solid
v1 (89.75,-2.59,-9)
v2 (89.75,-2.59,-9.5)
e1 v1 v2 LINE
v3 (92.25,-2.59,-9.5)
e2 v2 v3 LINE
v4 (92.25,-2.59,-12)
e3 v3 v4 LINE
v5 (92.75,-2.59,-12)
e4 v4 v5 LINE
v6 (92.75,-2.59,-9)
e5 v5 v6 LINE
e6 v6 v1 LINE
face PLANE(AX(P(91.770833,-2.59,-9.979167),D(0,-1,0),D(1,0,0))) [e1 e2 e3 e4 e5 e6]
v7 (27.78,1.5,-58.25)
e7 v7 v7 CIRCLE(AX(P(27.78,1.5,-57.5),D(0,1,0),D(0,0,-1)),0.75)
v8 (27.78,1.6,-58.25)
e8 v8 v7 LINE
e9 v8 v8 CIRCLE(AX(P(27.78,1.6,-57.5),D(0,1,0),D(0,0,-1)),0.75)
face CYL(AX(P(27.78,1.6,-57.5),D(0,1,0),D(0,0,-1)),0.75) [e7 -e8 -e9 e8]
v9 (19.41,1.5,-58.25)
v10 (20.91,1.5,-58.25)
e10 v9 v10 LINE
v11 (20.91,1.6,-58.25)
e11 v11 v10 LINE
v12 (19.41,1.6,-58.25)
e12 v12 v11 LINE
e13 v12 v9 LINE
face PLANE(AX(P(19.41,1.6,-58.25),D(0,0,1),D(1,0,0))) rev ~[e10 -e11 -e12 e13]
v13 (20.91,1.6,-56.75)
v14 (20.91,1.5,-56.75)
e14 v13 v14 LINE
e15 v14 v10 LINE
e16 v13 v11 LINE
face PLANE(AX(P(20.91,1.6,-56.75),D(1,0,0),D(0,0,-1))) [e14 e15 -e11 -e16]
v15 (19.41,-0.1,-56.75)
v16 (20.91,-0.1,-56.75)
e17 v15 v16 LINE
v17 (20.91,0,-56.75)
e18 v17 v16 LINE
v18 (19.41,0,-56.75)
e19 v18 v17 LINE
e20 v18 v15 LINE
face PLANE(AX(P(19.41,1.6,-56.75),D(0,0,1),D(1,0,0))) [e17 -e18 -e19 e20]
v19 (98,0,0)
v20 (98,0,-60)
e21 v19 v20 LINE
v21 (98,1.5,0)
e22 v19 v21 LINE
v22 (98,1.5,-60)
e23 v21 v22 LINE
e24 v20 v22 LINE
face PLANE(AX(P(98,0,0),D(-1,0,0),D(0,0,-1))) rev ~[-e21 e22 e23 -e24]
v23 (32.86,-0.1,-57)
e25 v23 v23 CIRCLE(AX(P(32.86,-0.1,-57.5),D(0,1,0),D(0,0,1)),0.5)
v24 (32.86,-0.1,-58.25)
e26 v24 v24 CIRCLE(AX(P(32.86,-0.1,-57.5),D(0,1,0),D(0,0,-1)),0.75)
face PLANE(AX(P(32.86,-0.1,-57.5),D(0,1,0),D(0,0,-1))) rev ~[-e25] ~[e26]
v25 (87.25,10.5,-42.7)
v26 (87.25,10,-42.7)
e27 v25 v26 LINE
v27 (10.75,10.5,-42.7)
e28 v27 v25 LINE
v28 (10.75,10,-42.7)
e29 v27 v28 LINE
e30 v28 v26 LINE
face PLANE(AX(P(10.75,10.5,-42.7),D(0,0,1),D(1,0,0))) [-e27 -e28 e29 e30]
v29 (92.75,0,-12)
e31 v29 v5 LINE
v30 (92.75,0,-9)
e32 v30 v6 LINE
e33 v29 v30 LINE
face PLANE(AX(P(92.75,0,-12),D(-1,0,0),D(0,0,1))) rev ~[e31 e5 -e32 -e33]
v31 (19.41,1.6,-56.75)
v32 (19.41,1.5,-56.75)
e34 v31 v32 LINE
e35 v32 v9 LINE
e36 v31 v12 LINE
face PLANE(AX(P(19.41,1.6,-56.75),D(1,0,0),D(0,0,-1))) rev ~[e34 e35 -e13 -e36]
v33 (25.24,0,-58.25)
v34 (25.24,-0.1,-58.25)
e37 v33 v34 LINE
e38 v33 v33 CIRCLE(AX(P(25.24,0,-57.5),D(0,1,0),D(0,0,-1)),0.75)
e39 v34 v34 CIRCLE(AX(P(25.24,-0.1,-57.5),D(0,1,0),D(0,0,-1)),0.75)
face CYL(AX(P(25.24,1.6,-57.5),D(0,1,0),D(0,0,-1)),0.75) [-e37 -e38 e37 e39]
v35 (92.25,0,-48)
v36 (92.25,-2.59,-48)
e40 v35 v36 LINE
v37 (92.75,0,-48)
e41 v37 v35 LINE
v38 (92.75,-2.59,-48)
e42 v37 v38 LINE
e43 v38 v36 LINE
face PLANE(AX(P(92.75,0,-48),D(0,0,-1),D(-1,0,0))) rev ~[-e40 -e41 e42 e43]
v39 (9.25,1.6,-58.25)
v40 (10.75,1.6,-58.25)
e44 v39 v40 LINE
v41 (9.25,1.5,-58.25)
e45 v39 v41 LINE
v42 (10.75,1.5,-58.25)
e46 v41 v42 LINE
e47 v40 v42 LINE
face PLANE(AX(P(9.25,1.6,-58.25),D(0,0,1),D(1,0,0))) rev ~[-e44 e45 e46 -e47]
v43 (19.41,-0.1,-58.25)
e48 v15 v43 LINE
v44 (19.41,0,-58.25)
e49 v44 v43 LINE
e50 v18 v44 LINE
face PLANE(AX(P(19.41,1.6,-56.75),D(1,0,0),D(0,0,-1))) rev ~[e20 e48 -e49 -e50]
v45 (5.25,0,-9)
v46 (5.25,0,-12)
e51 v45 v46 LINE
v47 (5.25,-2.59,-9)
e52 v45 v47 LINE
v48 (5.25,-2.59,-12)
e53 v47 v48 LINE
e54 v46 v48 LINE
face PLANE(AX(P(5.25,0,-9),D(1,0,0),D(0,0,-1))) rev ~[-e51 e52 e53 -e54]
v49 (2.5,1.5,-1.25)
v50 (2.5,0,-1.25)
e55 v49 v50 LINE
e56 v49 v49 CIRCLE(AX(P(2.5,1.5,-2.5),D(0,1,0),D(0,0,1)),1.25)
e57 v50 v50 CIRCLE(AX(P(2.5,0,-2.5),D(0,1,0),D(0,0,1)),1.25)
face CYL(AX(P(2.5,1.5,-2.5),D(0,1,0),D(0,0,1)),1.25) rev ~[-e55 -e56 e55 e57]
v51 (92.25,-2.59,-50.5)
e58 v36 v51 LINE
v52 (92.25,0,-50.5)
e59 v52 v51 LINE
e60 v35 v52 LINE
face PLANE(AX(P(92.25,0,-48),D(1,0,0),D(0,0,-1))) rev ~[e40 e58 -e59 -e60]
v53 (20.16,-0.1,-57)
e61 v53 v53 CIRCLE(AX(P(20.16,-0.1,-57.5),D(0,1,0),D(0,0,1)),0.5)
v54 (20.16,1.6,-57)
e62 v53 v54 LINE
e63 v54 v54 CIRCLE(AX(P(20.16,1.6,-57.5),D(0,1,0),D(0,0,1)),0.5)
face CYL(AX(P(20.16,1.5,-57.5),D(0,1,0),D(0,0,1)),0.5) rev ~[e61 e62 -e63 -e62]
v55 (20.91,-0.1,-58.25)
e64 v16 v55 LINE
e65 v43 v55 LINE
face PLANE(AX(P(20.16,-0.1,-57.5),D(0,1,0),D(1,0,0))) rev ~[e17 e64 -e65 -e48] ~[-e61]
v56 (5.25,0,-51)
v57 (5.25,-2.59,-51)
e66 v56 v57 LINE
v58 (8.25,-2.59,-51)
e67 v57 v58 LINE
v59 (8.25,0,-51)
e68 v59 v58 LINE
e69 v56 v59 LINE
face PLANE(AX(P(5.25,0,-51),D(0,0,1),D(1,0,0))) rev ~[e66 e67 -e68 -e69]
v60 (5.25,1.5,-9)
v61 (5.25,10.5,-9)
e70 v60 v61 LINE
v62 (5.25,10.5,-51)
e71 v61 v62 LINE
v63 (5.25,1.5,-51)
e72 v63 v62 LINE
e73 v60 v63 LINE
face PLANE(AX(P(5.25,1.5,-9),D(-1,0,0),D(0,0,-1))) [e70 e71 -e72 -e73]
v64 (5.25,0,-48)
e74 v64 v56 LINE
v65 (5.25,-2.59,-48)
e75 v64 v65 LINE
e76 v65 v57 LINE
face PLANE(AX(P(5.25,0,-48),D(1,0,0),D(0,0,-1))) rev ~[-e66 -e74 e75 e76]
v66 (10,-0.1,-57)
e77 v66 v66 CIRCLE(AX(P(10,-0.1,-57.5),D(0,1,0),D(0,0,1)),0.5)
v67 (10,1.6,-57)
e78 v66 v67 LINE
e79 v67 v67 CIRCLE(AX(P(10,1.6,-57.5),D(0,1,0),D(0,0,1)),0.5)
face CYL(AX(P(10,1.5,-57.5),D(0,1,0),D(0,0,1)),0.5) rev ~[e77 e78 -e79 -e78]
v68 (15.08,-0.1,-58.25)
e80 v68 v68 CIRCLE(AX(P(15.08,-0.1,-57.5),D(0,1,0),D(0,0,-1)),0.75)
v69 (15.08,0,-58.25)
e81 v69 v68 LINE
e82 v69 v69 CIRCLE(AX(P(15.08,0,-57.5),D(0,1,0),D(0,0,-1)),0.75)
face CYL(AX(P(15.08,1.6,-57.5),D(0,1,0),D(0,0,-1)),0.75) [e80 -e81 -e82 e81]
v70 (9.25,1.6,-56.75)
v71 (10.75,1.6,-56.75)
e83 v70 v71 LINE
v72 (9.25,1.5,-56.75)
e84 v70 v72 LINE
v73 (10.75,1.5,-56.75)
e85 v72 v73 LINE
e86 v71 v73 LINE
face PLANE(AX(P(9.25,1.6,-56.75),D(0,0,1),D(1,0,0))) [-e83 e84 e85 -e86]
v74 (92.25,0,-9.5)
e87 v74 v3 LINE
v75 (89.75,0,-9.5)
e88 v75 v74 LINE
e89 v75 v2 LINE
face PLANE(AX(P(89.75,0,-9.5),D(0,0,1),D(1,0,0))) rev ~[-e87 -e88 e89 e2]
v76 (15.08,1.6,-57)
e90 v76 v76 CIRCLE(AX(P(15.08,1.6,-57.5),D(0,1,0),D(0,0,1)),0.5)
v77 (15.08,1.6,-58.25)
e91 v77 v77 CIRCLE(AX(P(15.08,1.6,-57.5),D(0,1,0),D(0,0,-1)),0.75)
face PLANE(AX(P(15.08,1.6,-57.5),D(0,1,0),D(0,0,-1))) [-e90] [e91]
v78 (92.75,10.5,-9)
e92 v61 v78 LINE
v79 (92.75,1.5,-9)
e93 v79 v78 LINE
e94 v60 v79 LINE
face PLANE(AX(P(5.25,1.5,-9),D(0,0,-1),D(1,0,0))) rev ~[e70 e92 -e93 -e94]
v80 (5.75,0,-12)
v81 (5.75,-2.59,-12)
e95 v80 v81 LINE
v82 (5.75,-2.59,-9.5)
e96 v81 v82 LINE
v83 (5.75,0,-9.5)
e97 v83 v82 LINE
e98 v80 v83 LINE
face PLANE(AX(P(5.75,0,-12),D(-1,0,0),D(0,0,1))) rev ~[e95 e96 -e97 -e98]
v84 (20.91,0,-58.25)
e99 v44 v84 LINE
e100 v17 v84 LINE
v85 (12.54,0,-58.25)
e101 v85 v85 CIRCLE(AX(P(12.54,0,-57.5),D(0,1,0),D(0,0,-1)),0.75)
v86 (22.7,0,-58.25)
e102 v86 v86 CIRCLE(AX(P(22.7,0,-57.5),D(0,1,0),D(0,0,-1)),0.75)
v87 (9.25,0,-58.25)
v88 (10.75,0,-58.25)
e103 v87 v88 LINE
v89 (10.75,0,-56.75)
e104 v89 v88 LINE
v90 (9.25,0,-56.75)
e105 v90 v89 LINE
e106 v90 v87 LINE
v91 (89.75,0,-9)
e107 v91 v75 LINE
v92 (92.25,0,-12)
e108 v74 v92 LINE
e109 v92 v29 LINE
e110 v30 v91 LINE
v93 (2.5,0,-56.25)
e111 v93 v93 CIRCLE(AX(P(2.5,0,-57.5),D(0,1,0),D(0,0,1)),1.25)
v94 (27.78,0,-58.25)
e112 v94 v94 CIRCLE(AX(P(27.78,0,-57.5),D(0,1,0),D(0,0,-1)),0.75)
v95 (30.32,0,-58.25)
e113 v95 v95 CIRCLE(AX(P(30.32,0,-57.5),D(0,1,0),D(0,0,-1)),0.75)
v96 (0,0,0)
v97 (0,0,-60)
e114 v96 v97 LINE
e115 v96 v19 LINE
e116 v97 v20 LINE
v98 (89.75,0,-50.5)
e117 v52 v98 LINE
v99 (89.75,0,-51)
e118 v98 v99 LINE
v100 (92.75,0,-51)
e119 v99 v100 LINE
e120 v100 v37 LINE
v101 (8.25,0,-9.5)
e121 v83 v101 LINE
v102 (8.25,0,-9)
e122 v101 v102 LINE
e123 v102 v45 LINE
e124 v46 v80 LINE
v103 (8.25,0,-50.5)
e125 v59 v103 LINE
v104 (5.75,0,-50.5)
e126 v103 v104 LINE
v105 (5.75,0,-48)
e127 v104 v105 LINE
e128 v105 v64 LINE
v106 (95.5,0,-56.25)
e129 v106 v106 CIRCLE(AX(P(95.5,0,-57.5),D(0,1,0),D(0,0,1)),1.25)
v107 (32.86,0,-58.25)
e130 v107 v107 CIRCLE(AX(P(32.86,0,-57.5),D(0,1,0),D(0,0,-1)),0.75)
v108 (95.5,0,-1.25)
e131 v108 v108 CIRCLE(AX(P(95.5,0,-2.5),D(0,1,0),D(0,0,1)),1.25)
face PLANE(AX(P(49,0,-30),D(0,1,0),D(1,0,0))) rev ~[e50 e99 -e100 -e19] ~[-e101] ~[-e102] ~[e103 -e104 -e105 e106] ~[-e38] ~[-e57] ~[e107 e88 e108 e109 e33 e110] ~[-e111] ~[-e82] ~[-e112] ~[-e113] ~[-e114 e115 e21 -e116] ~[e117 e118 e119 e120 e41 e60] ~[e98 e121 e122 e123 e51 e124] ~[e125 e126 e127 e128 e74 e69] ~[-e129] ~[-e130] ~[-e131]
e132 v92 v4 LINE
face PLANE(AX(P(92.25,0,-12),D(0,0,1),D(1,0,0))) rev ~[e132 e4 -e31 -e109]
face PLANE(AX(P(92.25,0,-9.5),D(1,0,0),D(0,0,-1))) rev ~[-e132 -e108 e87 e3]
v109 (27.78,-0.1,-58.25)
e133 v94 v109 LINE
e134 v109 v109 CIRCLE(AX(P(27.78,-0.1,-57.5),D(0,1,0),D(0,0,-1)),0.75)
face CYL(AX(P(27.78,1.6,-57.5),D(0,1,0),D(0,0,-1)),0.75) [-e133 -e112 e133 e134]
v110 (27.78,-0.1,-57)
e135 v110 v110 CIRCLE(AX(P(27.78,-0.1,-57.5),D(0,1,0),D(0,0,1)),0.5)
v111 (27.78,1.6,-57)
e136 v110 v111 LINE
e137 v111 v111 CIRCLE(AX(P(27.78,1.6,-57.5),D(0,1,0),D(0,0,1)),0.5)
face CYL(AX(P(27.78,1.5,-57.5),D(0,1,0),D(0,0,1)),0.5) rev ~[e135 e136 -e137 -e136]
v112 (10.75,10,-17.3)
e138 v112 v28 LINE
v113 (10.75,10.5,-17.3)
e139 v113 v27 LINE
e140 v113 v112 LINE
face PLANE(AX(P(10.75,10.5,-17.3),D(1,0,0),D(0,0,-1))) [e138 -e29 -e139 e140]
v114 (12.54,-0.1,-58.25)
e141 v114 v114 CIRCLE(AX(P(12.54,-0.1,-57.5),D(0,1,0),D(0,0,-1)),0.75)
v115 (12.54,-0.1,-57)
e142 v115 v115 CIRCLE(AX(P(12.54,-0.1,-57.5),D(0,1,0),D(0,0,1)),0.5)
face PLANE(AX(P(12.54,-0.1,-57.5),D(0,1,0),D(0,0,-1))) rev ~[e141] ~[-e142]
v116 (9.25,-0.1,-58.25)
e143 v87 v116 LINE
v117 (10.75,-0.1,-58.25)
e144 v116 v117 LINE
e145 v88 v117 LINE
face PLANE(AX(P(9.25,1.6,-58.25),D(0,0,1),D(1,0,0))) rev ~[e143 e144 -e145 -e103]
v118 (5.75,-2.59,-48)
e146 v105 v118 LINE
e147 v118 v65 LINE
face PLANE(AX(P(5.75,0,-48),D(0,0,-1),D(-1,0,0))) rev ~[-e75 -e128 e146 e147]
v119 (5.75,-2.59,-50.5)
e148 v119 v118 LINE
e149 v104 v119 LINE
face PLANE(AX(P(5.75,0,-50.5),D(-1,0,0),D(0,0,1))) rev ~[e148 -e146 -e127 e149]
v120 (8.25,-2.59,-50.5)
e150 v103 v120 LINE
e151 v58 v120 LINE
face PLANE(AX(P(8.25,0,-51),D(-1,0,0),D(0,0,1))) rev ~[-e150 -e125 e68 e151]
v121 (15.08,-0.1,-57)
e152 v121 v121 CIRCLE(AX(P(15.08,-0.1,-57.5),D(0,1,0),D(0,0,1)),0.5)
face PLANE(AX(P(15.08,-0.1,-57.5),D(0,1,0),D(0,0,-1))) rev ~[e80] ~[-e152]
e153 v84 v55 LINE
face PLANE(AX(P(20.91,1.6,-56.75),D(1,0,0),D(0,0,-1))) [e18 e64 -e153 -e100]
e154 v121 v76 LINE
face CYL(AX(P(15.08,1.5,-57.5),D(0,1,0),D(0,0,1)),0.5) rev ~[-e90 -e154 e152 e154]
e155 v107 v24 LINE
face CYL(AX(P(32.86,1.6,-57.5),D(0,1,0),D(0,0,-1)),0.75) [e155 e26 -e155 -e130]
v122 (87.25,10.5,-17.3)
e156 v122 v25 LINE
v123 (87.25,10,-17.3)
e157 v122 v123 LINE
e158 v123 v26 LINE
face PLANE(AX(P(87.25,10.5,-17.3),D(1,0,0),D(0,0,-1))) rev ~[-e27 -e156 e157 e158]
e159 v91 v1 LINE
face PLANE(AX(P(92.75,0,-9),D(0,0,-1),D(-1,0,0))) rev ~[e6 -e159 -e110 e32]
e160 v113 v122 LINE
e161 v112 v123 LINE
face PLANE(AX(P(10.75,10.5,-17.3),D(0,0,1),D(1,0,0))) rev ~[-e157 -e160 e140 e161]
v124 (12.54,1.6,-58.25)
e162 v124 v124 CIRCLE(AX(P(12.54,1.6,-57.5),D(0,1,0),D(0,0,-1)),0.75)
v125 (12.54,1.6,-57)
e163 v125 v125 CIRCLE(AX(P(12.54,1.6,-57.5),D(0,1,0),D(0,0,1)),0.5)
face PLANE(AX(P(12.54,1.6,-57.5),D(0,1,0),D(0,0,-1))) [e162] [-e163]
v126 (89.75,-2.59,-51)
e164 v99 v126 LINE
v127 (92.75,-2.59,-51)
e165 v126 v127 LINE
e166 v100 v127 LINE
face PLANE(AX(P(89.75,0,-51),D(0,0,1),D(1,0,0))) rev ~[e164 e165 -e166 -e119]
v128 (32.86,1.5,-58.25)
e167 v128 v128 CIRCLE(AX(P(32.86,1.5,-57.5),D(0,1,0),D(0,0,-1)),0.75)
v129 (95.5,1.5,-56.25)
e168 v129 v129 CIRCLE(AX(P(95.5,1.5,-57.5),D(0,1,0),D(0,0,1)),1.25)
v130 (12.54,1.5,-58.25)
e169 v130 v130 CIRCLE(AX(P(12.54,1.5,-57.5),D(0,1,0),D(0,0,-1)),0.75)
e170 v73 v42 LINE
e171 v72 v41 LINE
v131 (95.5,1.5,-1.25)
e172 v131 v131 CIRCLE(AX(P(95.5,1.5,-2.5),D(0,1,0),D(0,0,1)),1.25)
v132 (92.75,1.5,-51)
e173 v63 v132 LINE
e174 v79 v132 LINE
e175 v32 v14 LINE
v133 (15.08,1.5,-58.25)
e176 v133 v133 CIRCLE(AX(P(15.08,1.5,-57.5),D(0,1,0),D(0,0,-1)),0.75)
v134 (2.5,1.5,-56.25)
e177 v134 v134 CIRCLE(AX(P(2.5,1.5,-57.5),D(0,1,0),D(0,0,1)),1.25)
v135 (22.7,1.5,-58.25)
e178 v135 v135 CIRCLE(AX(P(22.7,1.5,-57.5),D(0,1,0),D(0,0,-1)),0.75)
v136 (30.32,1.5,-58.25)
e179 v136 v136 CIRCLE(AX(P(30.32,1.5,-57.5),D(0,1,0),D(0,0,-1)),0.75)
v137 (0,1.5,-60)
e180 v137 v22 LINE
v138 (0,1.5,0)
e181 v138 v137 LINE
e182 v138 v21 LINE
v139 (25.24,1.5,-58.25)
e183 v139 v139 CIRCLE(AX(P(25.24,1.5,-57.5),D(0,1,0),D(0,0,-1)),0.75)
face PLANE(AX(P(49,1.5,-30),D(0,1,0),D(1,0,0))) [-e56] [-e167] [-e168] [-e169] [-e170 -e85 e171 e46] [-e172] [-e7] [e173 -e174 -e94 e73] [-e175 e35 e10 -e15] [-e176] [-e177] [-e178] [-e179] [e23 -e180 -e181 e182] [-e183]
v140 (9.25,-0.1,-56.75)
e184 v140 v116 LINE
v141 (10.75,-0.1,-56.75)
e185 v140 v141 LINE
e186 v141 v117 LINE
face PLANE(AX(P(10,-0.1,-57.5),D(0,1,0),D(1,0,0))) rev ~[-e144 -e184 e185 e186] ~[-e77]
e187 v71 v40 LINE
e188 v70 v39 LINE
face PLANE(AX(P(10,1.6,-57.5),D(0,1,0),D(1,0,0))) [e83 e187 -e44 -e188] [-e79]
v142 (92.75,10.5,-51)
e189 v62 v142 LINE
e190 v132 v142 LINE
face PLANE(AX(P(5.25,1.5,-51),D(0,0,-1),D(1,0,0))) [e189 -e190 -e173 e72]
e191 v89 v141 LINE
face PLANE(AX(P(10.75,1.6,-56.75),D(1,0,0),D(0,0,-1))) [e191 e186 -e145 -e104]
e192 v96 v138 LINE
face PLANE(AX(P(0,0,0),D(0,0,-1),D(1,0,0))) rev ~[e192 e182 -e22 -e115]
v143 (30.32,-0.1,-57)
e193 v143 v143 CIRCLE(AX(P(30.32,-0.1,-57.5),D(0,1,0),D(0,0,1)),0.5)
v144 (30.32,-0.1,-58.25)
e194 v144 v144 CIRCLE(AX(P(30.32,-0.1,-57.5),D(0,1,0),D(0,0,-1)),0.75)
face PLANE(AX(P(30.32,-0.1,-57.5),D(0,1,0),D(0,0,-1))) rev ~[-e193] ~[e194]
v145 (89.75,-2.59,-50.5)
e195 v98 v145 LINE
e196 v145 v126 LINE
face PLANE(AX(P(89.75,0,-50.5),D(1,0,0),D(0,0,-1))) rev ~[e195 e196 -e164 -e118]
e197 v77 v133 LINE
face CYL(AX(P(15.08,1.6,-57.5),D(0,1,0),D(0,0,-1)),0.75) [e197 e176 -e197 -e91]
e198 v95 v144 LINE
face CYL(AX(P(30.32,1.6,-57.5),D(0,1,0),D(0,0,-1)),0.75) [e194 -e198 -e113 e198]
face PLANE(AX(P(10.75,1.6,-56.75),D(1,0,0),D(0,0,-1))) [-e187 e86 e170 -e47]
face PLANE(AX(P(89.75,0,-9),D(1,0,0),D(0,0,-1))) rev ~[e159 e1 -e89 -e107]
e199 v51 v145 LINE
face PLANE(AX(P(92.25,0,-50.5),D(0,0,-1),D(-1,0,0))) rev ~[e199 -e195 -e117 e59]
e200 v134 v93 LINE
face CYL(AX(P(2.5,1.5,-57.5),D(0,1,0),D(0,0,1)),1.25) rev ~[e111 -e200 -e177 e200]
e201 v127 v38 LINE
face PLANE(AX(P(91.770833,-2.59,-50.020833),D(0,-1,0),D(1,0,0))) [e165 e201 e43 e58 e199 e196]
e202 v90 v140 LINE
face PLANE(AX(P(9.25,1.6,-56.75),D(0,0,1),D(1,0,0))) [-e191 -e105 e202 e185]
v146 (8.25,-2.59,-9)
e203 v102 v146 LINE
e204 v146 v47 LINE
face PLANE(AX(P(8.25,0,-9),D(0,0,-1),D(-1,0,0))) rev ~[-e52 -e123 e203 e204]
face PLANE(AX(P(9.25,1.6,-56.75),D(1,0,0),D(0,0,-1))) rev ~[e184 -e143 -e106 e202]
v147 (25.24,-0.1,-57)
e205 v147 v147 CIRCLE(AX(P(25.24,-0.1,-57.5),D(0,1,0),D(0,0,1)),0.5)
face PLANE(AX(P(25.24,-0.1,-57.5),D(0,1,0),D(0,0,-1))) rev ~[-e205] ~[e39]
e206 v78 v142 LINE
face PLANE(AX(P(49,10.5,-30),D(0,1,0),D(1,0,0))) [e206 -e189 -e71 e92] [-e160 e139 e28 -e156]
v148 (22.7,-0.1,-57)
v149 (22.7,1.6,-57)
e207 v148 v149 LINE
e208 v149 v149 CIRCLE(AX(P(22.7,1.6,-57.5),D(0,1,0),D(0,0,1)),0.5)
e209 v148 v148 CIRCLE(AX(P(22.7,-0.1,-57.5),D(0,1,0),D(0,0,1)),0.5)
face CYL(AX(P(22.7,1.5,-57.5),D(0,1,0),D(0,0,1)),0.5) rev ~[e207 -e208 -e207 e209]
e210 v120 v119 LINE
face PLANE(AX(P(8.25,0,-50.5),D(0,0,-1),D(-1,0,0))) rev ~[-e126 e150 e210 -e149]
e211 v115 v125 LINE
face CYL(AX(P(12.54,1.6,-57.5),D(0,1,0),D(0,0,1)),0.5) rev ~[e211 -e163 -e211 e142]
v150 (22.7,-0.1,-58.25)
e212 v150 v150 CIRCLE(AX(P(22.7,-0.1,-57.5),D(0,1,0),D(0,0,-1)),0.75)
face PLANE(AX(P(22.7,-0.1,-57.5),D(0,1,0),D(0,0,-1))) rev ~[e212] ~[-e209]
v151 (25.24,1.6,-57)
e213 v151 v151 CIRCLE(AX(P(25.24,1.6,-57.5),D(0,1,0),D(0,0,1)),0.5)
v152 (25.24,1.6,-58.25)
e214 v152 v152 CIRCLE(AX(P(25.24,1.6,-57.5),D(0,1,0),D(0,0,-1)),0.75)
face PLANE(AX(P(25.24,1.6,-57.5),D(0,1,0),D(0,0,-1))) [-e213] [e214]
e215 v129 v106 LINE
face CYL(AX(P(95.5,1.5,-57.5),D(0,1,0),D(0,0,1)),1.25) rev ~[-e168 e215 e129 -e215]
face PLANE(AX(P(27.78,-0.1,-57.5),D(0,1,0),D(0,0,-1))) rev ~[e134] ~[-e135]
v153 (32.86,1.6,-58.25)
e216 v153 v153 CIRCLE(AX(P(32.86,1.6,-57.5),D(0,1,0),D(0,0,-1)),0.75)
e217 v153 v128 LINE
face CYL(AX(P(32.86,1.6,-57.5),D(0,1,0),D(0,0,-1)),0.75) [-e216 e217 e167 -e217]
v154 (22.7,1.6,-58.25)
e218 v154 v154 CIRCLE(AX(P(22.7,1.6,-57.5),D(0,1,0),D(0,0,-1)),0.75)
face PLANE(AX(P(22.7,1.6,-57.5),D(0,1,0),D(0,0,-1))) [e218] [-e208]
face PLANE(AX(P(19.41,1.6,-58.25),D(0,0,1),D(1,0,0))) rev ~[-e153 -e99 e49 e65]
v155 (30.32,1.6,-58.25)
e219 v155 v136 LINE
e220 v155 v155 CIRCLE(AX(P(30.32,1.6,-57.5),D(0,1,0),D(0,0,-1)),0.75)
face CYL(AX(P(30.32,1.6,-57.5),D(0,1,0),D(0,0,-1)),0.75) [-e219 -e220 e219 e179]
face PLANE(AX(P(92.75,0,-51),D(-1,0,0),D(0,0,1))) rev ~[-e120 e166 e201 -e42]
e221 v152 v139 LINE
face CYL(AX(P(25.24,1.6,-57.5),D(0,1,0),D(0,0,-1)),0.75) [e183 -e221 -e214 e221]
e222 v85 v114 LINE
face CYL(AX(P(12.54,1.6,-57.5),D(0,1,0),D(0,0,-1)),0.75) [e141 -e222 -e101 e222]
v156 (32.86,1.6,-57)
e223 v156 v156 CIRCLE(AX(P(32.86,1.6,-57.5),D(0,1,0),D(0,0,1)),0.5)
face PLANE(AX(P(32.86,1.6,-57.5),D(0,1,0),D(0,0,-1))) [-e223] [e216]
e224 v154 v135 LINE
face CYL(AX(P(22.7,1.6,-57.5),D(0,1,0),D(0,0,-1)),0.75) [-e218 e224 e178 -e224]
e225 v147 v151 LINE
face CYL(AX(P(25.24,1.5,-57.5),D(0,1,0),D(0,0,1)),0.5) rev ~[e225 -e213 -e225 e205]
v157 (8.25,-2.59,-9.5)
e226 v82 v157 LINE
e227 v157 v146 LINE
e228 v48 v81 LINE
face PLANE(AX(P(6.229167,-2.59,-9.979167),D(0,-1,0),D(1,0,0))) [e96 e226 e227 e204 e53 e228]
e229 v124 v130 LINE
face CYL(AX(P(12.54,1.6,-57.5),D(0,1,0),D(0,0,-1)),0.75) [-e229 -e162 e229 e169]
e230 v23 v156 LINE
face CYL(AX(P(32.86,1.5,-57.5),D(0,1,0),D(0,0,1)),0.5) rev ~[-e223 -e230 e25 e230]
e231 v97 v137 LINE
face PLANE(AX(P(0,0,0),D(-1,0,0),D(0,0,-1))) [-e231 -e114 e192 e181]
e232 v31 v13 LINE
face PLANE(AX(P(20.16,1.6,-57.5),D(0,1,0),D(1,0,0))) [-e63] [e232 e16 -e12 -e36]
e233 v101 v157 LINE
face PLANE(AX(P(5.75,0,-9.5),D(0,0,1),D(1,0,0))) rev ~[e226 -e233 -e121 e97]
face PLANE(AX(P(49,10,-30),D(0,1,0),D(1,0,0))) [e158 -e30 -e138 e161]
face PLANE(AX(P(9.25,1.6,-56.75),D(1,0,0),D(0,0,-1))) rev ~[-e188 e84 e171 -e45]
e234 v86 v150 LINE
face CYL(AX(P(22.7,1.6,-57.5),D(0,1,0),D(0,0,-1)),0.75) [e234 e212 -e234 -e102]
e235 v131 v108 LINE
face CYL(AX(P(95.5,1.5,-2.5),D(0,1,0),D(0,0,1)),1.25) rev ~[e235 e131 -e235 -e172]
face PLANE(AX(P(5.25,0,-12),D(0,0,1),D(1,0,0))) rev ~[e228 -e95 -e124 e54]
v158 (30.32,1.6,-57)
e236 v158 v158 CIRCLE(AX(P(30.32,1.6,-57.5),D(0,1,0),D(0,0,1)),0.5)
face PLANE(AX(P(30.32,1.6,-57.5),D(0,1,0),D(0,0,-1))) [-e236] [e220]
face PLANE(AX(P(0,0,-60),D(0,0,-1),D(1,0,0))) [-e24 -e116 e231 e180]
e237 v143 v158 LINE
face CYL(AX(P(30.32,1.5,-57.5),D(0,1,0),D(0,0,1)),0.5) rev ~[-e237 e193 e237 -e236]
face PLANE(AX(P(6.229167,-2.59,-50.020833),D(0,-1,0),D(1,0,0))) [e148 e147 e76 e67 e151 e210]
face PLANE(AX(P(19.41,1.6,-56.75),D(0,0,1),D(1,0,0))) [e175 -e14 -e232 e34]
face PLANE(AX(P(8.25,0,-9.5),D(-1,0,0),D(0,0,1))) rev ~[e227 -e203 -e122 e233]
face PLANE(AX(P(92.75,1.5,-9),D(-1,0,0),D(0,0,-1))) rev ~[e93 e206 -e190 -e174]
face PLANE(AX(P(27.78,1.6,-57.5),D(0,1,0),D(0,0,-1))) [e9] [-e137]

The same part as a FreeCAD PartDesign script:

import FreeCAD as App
import Part
import Sketcher
from FreeCAD import Vector

doc = App.newDocument("Part")
body = doc.addObject("PartDesign::Body", "Body")

sketch1 = body.newObject("Sketcher::SketchObject", "Sketch")
sketch1.AttachmentSupport = (doc.getObject("XZ_Plane"), [""])
sketch1.MapMode = "FlatFace"
sketch1.addGeometry(Part.LineSegment(Vector(0, -60, 0), Vector(0, 0, 0)), False)
sketch1.addGeometry(Part.LineSegment(Vector(0, 0, 0), Vector(98, 0, 0)), False)
sketch1.addGeometry(Part.LineSegment(Vector(98, 0, 0), Vector(98, -60, 0)), False)
sketch1.addGeometry(Part.LineSegment(Vector(98, -60, 0), Vector(0, -60, 0)), False)
sketch1.addConstraint(Sketcher.Constraint("Coincident", 0, 2, 1, 1))
sketch1.addConstraint(Sketcher.Constraint("Coincident", 1, 2, 2, 1))
sketch1.addConstraint(Sketcher.Constraint("Coincident", 2, 2, 3, 1))
sketch1.addConstraint(Sketcher.Constraint("Coincident", 3, 2, 0, 1))
sketch1.addConstraint(Sketcher.Constraint("Vertical", 0))
sketch1.addConstraint(Sketcher.Constraint("Horizontal", 1))
sketch1.addConstraint(Sketcher.Constraint("Vertical", 2))
sketch1.addConstraint(Sketcher.Constraint("Horizontal", 3))
sketch1.addConstraint(Sketcher.Constraint("Coincident", 0, 2, -1, 1))
sketch1.addConstraint(Sketcher.Constraint("DistanceX", 1, 1, 1, 2, 98.0))
sketch1.addConstraint(Sketcher.Constraint("DistanceY", 0, 1, 0, 2, 60.0))
pad1 = body.newObject("PartDesign::Pad", "Pad")
pad1.Profile = sketch1
pad1.Length = 1.5
pad1.Reversed = True

sketch2 = body.newObject("Sketcher::SketchObject", "Sketch001")
sketch2.AttachmentSupport = (doc.getObject("XZ_Plane"), [""])
sketch2.MapMode = "FlatFace"
sketch2.AttachmentOffset = App.Placement(Vector(0, 0, -1.5), App.Rotation())
sketch2.addGeometry(Part.LineSegment(Vector(5, -51, 0), Vector(5, -9, 0)), False)
sketch2.addGeometry(Part.LineSegment(Vector(5, -9, 0), Vector(93, -9, 0)), False)
sketch2.addGeometry(Part.LineSegment(Vector(93, -9, 0), Vector(93, -51, 0)), False)
sketch2.addGeometry(Part.LineSegment(Vector(93, -51, 0), Vector(5, -51, 0)), False)
sketch2.addConstraint(Sketcher.Constraint("Coincident", 0, 2, 1, 1))
sketch2.addConstraint(Sketcher.Constraint("Coincident", 1, 2, 2, 1))
sketch2.addConstraint(Sketcher.Constraint("Coincident", 2, 2, 3, 1))
sketch2.addConstraint(Sketcher.Constraint("Coincident", 3, 2, 0, 1))
sketch2.addConstraint(Sketcher.Constraint("Vertical", 0))
sketch2.addConstraint(Sketcher.Constraint("Horizontal", 1))
sketch2.addConstraint(Sketcher.Constraint("Vertical", 2))
sketch2.addConstraint(Sketcher.Constraint("Horizontal", 3))
sketch2.addConstraint(Sketcher.Constraint("DistanceY", 0, 1, 0, 2, 42.0))
sketch2.addConstraint(Sketcher.Constraint("DistanceX", 1, 1, 1, 2, 87.5))
sketch2.addConstraint(Sketcher.Constraint("DistanceY", 0, 2, -1, 1, 9.0))
sketch2.addConstraint(Sketcher.Constraint("DistanceX", -1, 1, 0, 2, 5.25))
pad2 = body.newObject("PartDesign::Pad", "Pad001")
pad2.Profile = sketch2
pad2.Length = 9
pad2.Reversed = True

sketch3 = body.newObject("Sketcher::SketchObject", "Sketch002")
sketch3.AttachmentSupport = (doc.getObject("XZ_Plane"), [""])
sketch3.MapMode = "FlatFace"
sketch3.AttachmentOffset = App.Placement(Vector(0, 0, -10.5), App.Rotation())
sketch3.addGeometry(Part.LineSegment(Vector(11, -43, 0), Vector(11, -17, 0)), False)
sketch3.addGeometry(Part.LineSegment(Vector(11, -17, 0), Vector(87, -17, 0)), False)
sketch3.addGeometry(Part.LineSegment(Vector(87, -17, 0), Vector(87, -43, 0)), False)
sketch3.addGeometry(Part.LineSegment(Vector(87, -43, 0), Vector(11, -43, 0)), False)
sketch3.addConstraint(Sketcher.Constraint("Coincident", 0, 2, 1, 1))
sketch3.addConstraint(Sketcher.Constraint("Coincident", 1, 2, 2, 1))
sketch3.addConstraint(Sketcher.Constraint("Coincident", 2, 2, 3, 1))
sketch3.addConstraint(Sketcher.Constraint("Coincident", 3, 2, 0, 1))
sketch3.addConstraint(Sketcher.Constraint("Vertical", 0))
sketch3.addConstraint(Sketcher.Constraint("Horizontal", 1))
sketch3.addConstraint(Sketcher.Constraint("Vertical", 2))
sketch3.addConstraint(Sketcher.Constraint("Horizontal", 3))
sketch3.addConstraint(Sketcher.Constraint("DistanceX", 1, 1, 1, 2, 76.5))
sketch3.addConstraint(Sketcher.Constraint("DistanceY", 0, 1, 0, 2, 25.4))
sketch3.addConstraint(Sketcher.Constraint("DistanceY", 0, 2, -1, 1, 17.3))
sketch3.addConstraint(Sketcher.Constraint("DistanceX", -1, 1, 0, 2, 10.75))
pocket1 = body.newObject("PartDesign::Pocket", "Pocket")
pocket1.Profile = sketch3
pocket1.Length = 0.5
pocket1.Reversed = True

sketch4 = body.newObject("Sketcher::SketchObject", "Sketch003")
sketch4.AttachmentSupport = (doc.getObject("XZ_Plane"), [""])
sketch4.MapMode = "FlatFace"
sketch4.AttachmentOffset = App.Placement(Vector(0, 0, -1.5), App.Rotation())
sketch4.addGeometry(Part.Circle(Vector(2.5, -57.5, 0), Vector(0, 0, 1), 1.2), False)
sketch4.addGeometry(Part.Circle(Vector(95.5, -57.5, 0), Vector(0, 0, 1), 1.2), False)
sketch4.addGeometry(Part.Circle(Vector(95.5, -2.5, 0), Vector(0, 0, 1), 1.2), False)
sketch4.addGeometry(Part.Circle(Vector(2.5, -2.5, 0), Vector(0, 0, 1), 1.2), False)
sketch4.addConstraint(Sketcher.Constraint("Equal", 0, 1))
sketch4.addConstraint(Sketcher.Constraint("Equal", 1, 2))
sketch4.addConstraint(Sketcher.Constraint("Equal", 2, 3))
sketch4.addConstraint(Sketcher.Constraint("Horizontal", 0, 3, 1, 3))
sketch4.addConstraint(Sketcher.Constraint("Horizontal", 2, 3, 3, 3))
sketch4.addConstraint(Sketcher.Constraint("Vertical", 1, 3, 2, 3))
sketch4.addConstraint(Sketcher.Constraint("Vertical", 0, 3, 3, 3))
sketch4.addConstraint(Sketcher.Constraint("Diameter", 0, 2.5))
sketch4.addConstraint(Sketcher.Constraint("DistanceX", 0, 3, 1, 3, 93.0))
sketch4.addConstraint(Sketcher.Constraint("DistanceY", 1, 3, 2, 3, 55.0))
sketch4.addConstraint(Sketcher.Constraint("DistanceX", -1, 1, 0, 3, 2.5))
sketch4.addConstraint(Sketcher.Constraint("DistanceY", 0, 3, -1, 1, 57.5))
pocket2 = body.newObject("PartDesign::Pocket", "Pocket001")
pocket2.Profile = sketch4
pocket2.Type = "ThroughAll"
pocket2.Reversed = True

sketch5 = body.newObject("Sketcher::SketchObject", "Sketch004")
sketch5.AttachmentSupport = (doc.getObject("XZ_Plane"), [""])
sketch5.MapMode = "FlatFace"
sketch5.AttachmentOffset = App.Placement(Vector(0, 0, -1.5), App.Rotation())
sketch5.addGeometry(Part.Circle(Vector(10, -57.5, 0), Vector(0, 0, 1), 0.5), False)
sketch5.addGeometry(Part.Circle(Vector(12.5, -57.5, 0), Vector(0, 0, 1), 0.5), False)
sketch5.addGeometry(Part.Circle(Vector(15.1, -57.5, 0), Vector(0, 0, 1), 0.5), False)
sketch5.addGeometry(Part.Circle(Vector(20.2, -57.5, 0), Vector(0, 0, 1), 0.5), False)
sketch5.addGeometry(Part.Circle(Vector(22.7, -57.5, 0), Vector(0, 0, 1), 0.5), False)
sketch5.addGeometry(Part.Circle(Vector(25.2, -57.5, 0), Vector(0, 0, 1), 0.5), False)
sketch5.addGeometry(Part.Circle(Vector(27.8, -57.5, 0), Vector(0, 0, 1), 0.5), False)
sketch5.addGeometry(Part.Circle(Vector(30.3, -57.5, 0), Vector(0, 0, 1), 0.5), False)
sketch5.addGeometry(Part.Circle(Vector(32.9, -57.5, 0), Vector(0, 0, 1), 0.5), False)
sketch5.addConstraint(Sketcher.Constraint("Equal", 0, 1))
sketch5.addConstraint(Sketcher.Constraint("Equal", 1, 2))
sketch5.addConstraint(Sketcher.Constraint("Equal", 2, 3))
sketch5.addConstraint(Sketcher.Constraint("Equal", 3, 4))
sketch5.addConstraint(Sketcher.Constraint("Equal", 4, 5))
sketch5.addConstraint(Sketcher.Constraint("Equal", 5, 6))
sketch5.addConstraint(Sketcher.Constraint("Equal", 6, 7))
sketch5.addConstraint(Sketcher.Constraint("Equal", 7, 8))
sketch5.addConstraint(Sketcher.Constraint("Horizontal", 0, 3, 1, 3))
sketch5.addConstraint(Sketcher.Constraint("Horizontal", 1, 3, 2, 3))
sketch5.addConstraint(Sketcher.Constraint("Horizontal", 2, 3, 3, 3))
sketch5.addConstraint(Sketcher.Constraint("Horizontal", 3, 3, 4, 3))
sketch5.addConstraint(Sketcher.Constraint("Horizontal", 4, 3, 5, 3))
sketch5.addConstraint(Sketcher.Constraint("Horizontal", 5, 3, 6, 3))
sketch5.addConstraint(Sketcher.Constraint("Horizontal", 6, 3, 7, 3))
sketch5.addConstraint(Sketcher.Constraint("Horizontal", 7, 3, 8, 3))
sketch5.addConstraint(Sketcher.Constraint("Diameter", 0, 1.0))
sketch5.addConstraint(Sketcher.Constraint("DistanceX", -1, 1, 0, 3, 10.0))
sketch5.addConstraint(Sketcher.Constraint("DistanceY", 0, 3, -1, 1, 57.5))
sketch5.addConstraint(Sketcher.Constraint("DistanceX", -1, 1, 4, 3, 22.7))
sketch5.addConstraint(Sketcher.Constraint("DistanceX", 1, 3, 5, 3, 12.7))
sketch5.addConstraint(Sketcher.Constraint("DistanceX", 2, 3, 6, 3, 12.7))
sketch5.addConstraint(Sketcher.Constraint("DistanceX", 3, 3, 8, 3, 12.7))
sketch5.addConstraint(Sketcher.Constraint("DistanceX", -1, 1, 1, 3, 12.54))
sketch5.addConstraint(Sketcher.Constraint("DistanceX", -1, 1, 2, 3, 15.08))
sketch5.addConstraint(Sketcher.Constraint("DistanceX", -1, 1, 3, 3, 20.16))
sketch5.addConstraint(Sketcher.Constraint("DistanceX", -1, 1, 7, 3, 30.32))
pocket3 = body.newObject("PartDesign::Pocket", "Pocket002")
pocket3.Profile = sketch5
pocket3.Length = 10
pocket3.Reversed = True

sketch6 = body.newObject("Sketcher::SketchObject", "Sketch005")
sketch6.AttachmentSupport = (doc.getObject("XZ_Plane"), [""])
sketch6.MapMode = "FlatFace"
sketch6.AttachmentOffset = App.Placement(Vector(0, 0, -1.6), App.Rotation())
sketch6.addGeometry(Part.Circle(Vector(12.5, -57.5, 0), Vector(0, 0, 1), 0.8), False)
sketch6.addGeometry(Part.Circle(Vector(12.5, -57.5, 0), Vector(0, 0, 1), 0.5), False)
sketch6.addGeometry(Part.Circle(Vector(15.1, -57.5, 0), Vector(0, 0, 1), 0.8), False)
sketch6.addGeometry(Part.Circle(Vector(15.1, -57.5, 0), Vector(0, 0, 1), 0.5), False)
sketch6.addGeometry(Part.Circle(Vector(22.7, -57.5, 0), Vector(0, 0, 1), 0.8), False)
sketch6.addGeometry(Part.Circle(Vector(22.7, -57.5, 0), Vector(0, 0, 1), 0.5), False)
sketch6.addGeometry(Part.Circle(Vector(25.2, -57.5, 0), Vector(0, 0, 1), 0.8), False)
sketch6.addGeometry(Part.Circle(Vector(25.2, -57.5, 0), Vector(0, 0, 1), 0.5), False)
sketch6.addGeometry(Part.Circle(Vector(27.8, -57.5, 0), Vector(0, 0, 1), 0.8), False)
sketch6.addGeometry(Part.Circle(Vector(27.8, -57.5, 0), Vector(0, 0, 1), 0.5), False)
sketch6.addGeometry(Part.Circle(Vector(30.3, -57.5, 0), Vector(0, 0, 1), 0.8), False)
sketch6.addGeometry(Part.Circle(Vector(30.3, -57.5, 0), Vector(0, 0, 1), 0.5), False)
sketch6.addGeometry(Part.Circle(Vector(32.9, -57.5, 0), Vector(0, 0, 1), 0.8), False)
sketch6.addGeometry(Part.Circle(Vector(32.9, -57.5, 0), Vector(0, 0, 1), 0.5), False)
sketch6.addGeometry(Part.LineSegment(Vector(19.4, -58.2, 0), Vector(19.4, -56.8, 0)), False)
sketch6.addGeometry(Part.LineSegment(Vector(19.4, -56.8, 0), Vector(20.9, -56.8, 0)), False)
sketch6.addGeometry(Part.LineSegment(Vector(20.9, -56.8, 0), Vector(20.9, -58.2, 0)), False)
sketch6.addGeometry(Part.LineSegment(Vector(20.9, -58.2, 0), Vector(19.4, -58.2, 0)), False)
sketch6.addGeometry(Part.Circle(Vector(20.2, -57.5, 0), Vector(0, 0, 1), 0.5), False)
sketch6.addGeometry(Part.LineSegment(Vector(9.2, -58.2, 0), Vector(9.2, -56.8, 0)), False)
sketch6.addGeometry(Part.LineSegment(Vector(9.2, -56.8, 0), Vector(10.8, -56.8, 0)), False)
sketch6.addGeometry(Part.LineSegment(Vector(10.8, -56.8, 0), Vector(10.8, -58.2, 0)), False)
sketch6.addGeometry(Part.LineSegment(Vector(10.8, -58.2, 0), Vector(9.2, -58.2, 0)), False)
sketch6.addGeometry(Part.Circle(Vector(10, -57.5, 0), Vector(0, 0, 1), 0.5), False)
sketch6.addConstraint(Sketcher.Constraint("Coincident", 14, 2, 15, 1))
sketch6.addConstraint(Sketcher.Constraint("Coincident", 15, 2, 16, 1))
sketch6.addConstraint(Sketcher.Constraint("Coincident", 16, 2, 17, 1))
sketch6.addConstraint(Sketcher.Constraint("Coincident", 17, 2, 14, 1))
sketch6.addConstraint(Sketcher.Constraint("Coincident", 19, 2, 20, 1))
sketch6.addConstraint(Sketcher.Constraint("Coincident", 20, 2, 21, 1))
sketch6.addConstraint(Sketcher.Constraint("Coincident", 21, 2, 22, 1))
sketch6.addConstraint(Sketcher.Constraint("Coincident", 22, 2, 19, 1))
sketch6.addConstraint(Sketcher.Constraint("Vertical", 14))
sketch6.addConstraint(Sketcher.Constraint("Horizontal", 15))
sketch6.addConstraint(Sketcher.Constraint("Vertical", 16))
sketch6.addConstraint(Sketcher.Constraint("Horizontal", 17))
sketch6.addConstraint(Sketcher.Constraint("Vertical", 19))
sketch6.addConstraint(Sketcher.Constraint("Horizontal", 20))
sketch6.addConstraint(Sketcher.Constraint("Vertical", 21))
sketch6.addConstraint(Sketcher.Constraint("Horizontal", 22))
sketch6.addConstraint(Sketcher.Constraint("Coincident", 1, 3, 0, 3))
sketch6.addConstraint(Sketcher.Constraint("Coincident", 3, 3, 2, 3))
sketch6.addConstraint(Sketcher.Constraint("Coincident", 5, 3, 4, 3))
sketch6.addConstraint(Sketcher.Constraint("Coincident", 7, 3, 6, 3))
sketch6.addConstraint(Sketcher.Constraint("Coincident", 9, 3, 8, 3))
sketch6.addConstraint(Sketcher.Constraint("Coincident", 11, 3, 10, 3))
sketch6.addConstraint(Sketcher.Constraint("Coincident", 13, 3, 12, 3))
sketch6.addConstraint(Sketcher.Constraint("Equal", 0, 2))
sketch6.addConstraint(Sketcher.Constraint("Equal", 1, 3))
sketch6.addConstraint(Sketcher.Constraint("Equal", 2, 4))
sketch6.addConstraint(Sketcher.Constraint("Equal", 3, 5))
sketch6.addConstraint(Sketcher.Constraint("Equal", 4, 6))
sketch6.addConstraint(Sketcher.Constraint("Equal", 5, 7))
sketch6.addConstraint(Sketcher.Constraint("Equal", 6, 8))
sketch6.addConstraint(Sketcher.Constraint("Equal", 7, 9))
sketch6.addConstraint(Sketcher.Constraint("Equal", 8, 10))
sketch6.addConstraint(Sketcher.Constraint("Equal", 9, 11))
sketch6.addConstraint(Sketcher.Constraint("Equal", 10, 12))
sketch6.addConstraint(Sketcher.Constraint("Equal", 11, 13))
sketch6.addConstraint(Sketcher.Constraint("Equal", 13, 18))
sketch6.addConstraint(Sketcher.Constraint("Equal", 18, 23))
sketch6.addConstraint(Sketcher.Constraint("Horizontal", 1, 3, 2, 3))
sketch6.addConstraint(Sketcher.Constraint("Horizontal", 3, 3, 4, 3))
sketch6.addConstraint(Sketcher.Constraint("Horizontal", 5, 3, 6, 3))
sketch6.addConstraint(Sketcher.Constraint("Horizontal", 7, 3, 8, 3))
sketch6.addConstraint(Sketcher.Constraint("Horizontal", 9, 3, 10, 3))
sketch6.addConstraint(Sketcher.Constraint("Horizontal", 11, 3, 12, 3))
sketch6.addConstraint(Sketcher.Constraint("Horizontal", 13, 3, 18, 3))
sketch6.addConstraint(Sketcher.Constraint("Horizontal", 18, 3, 23, 3))
sketch6.addConstraint(Sketcher.Constraint("Horizontal", 15, 2, 19, 2))
sketch6.addConstraint(Sketcher.Constraint("Horizontal", 17, 2, 21, 2))
sketch6.addConstraint(Sketcher.Constraint("Equal", 17, 20))
sketch6.addConstraint(Sketcher.Constraint("Equal", 22, 14))
sketch6.addConstraint(Sketcher.Constraint("Diameter", 1, 1.0))
sketch6.addConstraint(Sketcher.Constraint("Diameter", 0, 1.5))
sketch6.addConstraint(Sketcher.Constraint("DistanceX", 15, 1, 15, 2, 1.5))
sketch6.addConstraint(Sketcher.Constraint("DistanceX", -1, 1, 23, 3, 10.0))
sketch6.addConstraint(Sketcher.Constraint("DistanceY", 0, 3, -1, 1, 57.5))
sketch6.addConstraint(Sketcher.Constraint("DistanceX", -1, 1, 4, 3, 22.7))
sketch6.addConstraint(Sketcher.Constraint("DistanceX", 0, 3, 6, 3, 12.7))
sketch6.addConstraint(Sketcher.Constraint("DistanceX", 2, 3, 8, 3, 12.7))
sketch6.addConstraint(Sketcher.Constraint("DistanceX", -1, 1, 0, 3, 12.54))
sketch6.addConstraint(Sketcher.Constraint("DistanceX", -1, 1, 2, 3, 15.08))
sketch6.addConstraint(Sketcher.Constraint("DistanceX", -1, 1, 10, 3, 30.32))
sketch6.addConstraint(Sketcher.Constraint("DistanceX", -1, 1, 12, 3, 32.86))
sketch6.addConstraint(Sketcher.Constraint("DistanceX", -1, 1, 18, 3, 20.16))
sketch6.addConstraint(Sketcher.Constraint("DistanceX", -1, 1, 14, 2, 19.41))
sketch6.addConstraint(Sketcher.Constraint("DistanceY", 14, 2, -1, 1, 56.75))
sketch6.addConstraint(Sketcher.Constraint("DistanceX", -1, 1, 19, 2, 9.25))
pad3 = body.newObject("PartDesign::Pad", "Pad002")
pad3.Profile = sketch6
pad3.Length = 0.1

sketch7 = body.newObject("Sketcher::SketchObject", "Sketch006")
sketch7.AttachmentSupport = (doc.getObject("XZ_Plane"), [""])
sketch7.MapMode = "FlatFace"
sketch7.AttachmentOffset = App.Placement(Vector(0, 0, -1.6), App.Rotation())
sketch7.addGeometry(Part.Circle(Vector(12.5, -57.5, 0), Vector(0, 0, 1), 0.8), False)
sketch7.addGeometry(Part.Circle(Vector(12.5, -57.5, 0), Vector(0, 0, 1), 0.5), False)
sketch7.addGeometry(Part.Circle(Vector(15.1, -57.5, 0), Vector(0, 0, 1), 0.8), False)
sketch7.addGeometry(Part.Circle(Vector(15.1, -57.5, 0), Vector(0, 0, 1), 0.5), False)
sketch7.addGeometry(Part.Circle(Vector(22.7, -57.5, 0), Vector(0, 0, 1), 0.8), False)
sketch7.addGeometry(Part.Circle(Vector(22.7, -57.5, 0), Vector(0, 0, 1), 0.5), False)
sketch7.addGeometry(Part.Circle(Vector(25.2, -57.5, 0), Vector(0, 0, 1), 0.8), False)
sketch7.addGeometry(Part.Circle(Vector(25.2, -57.5, 0), Vector(0, 0, 1), 0.5), False)
sketch7.addGeometry(Part.Circle(Vector(27.8, -57.5, 0), Vector(0, 0, 1), 0.8), False)
sketch7.addGeometry(Part.Circle(Vector(27.8, -57.5, 0), Vector(0, 0, 1), 0.5), False)
sketch7.addGeometry(Part.Circle(Vector(30.3, -57.5, 0), Vector(0, 0, 1), 0.8), False)
sketch7.addGeometry(Part.Circle(Vector(30.3, -57.5, 0), Vector(0, 0, 1), 0.5), False)
sketch7.addGeometry(Part.Circle(Vector(32.9, -57.5, 0), Vector(0, 0, 1), 0.8), False)
sketch7.addGeometry(Part.Circle(Vector(32.9, -57.5, 0), Vector(0, 0, 1), 0.5), False)
sketch7.addGeometry(Part.LineSegment(Vector(9.2, -58.2, 0), Vector(9.2, -56.8, 0)), False)
sketch7.addGeometry(Part.LineSegment(Vector(9.2, -56.8, 0), Vector(10.8, -56.8, 0)), False)
sketch7.addGeometry(Part.LineSegment(Vector(10.8, -56.8, 0), Vector(10.8, -58.2, 0)), False)
sketch7.addGeometry(Part.LineSegment(Vector(10.8, -58.2, 0), Vector(9.2, -58.2, 0)), False)
sketch7.addGeometry(Part.Circle(Vector(10, -57.5, 0), Vector(0, 0, 1), 0.5), False)
sketch7.addGeometry(Part.LineSegment(Vector(19.4, -58.2, 0), Vector(19.4, -56.8, 0)), False)
sketch7.addGeometry(Part.LineSegment(Vector(19.4, -56.8, 0), Vector(20.9, -56.8, 0)), False)
sketch7.addGeometry(Part.LineSegment(Vector(20.9, -56.8, 0), Vector(20.9, -58.2, 0)), False)
sketch7.addGeometry(Part.LineSegment(Vector(20.9, -58.2, 0), Vector(19.4, -58.2, 0)), False)
sketch7.addGeometry(Part.Circle(Vector(20.2, -57.5, 0), Vector(0, 0, 1), 0.5), False)
sketch7.addConstraint(Sketcher.Constraint("Coincident", 14, 2, 15, 1))
sketch7.addConstraint(Sketcher.Constraint("Coincident", 15, 2, 16, 1))
sketch7.addConstraint(Sketcher.Constraint("Coincident", 16, 2, 17, 1))
sketch7.addConstraint(Sketcher.Constraint("Coincident", 17, 2, 14, 1))
sketch7.addConstraint(Sketcher.Constraint("Coincident", 19, 2, 20, 1))
sketch7.addConstraint(Sketcher.Constraint("Coincident", 20, 2, 21, 1))
sketch7.addConstraint(Sketcher.Constraint("Coincident", 21, 2, 22, 1))
sketch7.addConstraint(Sketcher.Constraint("Coincident", 22, 2, 19, 1))
sketch7.addConstraint(Sketcher.Constraint("Vertical", 14))
sketch7.addConstraint(Sketcher.Constraint("Horizontal", 15))
sketch7.addConstraint(Sketcher.Constraint("Vertical", 16))
sketch7.addConstraint(Sketcher.Constraint("Horizontal", 17))
sketch7.addConstraint(Sketcher.Constraint("Vertical", 19))
sketch7.addConstraint(Sketcher.Constraint("Horizontal", 20))
sketch7.addConstraint(Sketcher.Constraint("Vertical", 21))
sketch7.addConstraint(Sketcher.Constraint("Horizontal", 22))
sketch7.addConstraint(Sketcher.Constraint("Coincident", 1, 3, 0, 3))
sketch7.addConstraint(Sketcher.Constraint("Coincident", 3, 3, 2, 3))
sketch7.addConstraint(Sketcher.Constraint("Coincident", 5, 3, 4, 3))
sketch7.addConstraint(Sketcher.Constraint("Coincident", 7, 3, 6, 3))
sketch7.addConstraint(Sketcher.Constraint("Coincident", 9, 3, 8, 3))
sketch7.addConstraint(Sketcher.Constraint("Coincident", 11, 3, 10, 3))
sketch7.addConstraint(Sketcher.Constraint("Coincident", 13, 3, 12, 3))
sketch7.addConstraint(Sketcher.Constraint("Equal", 0, 2))
sketch7.addConstraint(Sketcher.Constraint("Equal", 1, 3))
sketch7.addConstraint(Sketcher.Constraint("Equal", 2, 4))
sketch7.addConstraint(Sketcher.Constraint("Equal", 3, 5))
sketch7.addConstraint(Sketcher.Constraint("Equal", 4, 6))
sketch7.addConstraint(Sketcher.Constraint("Equal", 5, 7))
sketch7.addConstraint(Sketcher.Constraint("Equal", 6, 8))
sketch7.addConstraint(Sketcher.Constraint("Equal", 7, 9))
sketch7.addConstraint(Sketcher.Constraint("Equal", 8, 10))
sketch7.addConstraint(Sketcher.Constraint("Equal", 9, 11))
sketch7.addConstraint(Sketcher.Constraint("Equal", 10, 12))
sketch7.addConstraint(Sketcher.Constraint("Equal", 11, 13))
sketch7.addConstraint(Sketcher.Constraint("Equal", 13, 18))
sketch7.addConstraint(Sketcher.Constraint("Equal", 18, 23))
sketch7.addConstraint(Sketcher.Constraint("Horizontal", 1, 3, 2, 3))
sketch7.addConstraint(Sketcher.Constraint("Horizontal", 3, 3, 4, 3))
sketch7.addConstraint(Sketcher.Constraint("Horizontal", 5, 3, 6, 3))
sketch7.addConstraint(Sketcher.Constraint("Horizontal", 7, 3, 8, 3))
sketch7.addConstraint(Sketcher.Constraint("Horizontal", 9, 3, 10, 3))
sketch7.addConstraint(Sketcher.Constraint("Horizontal", 11, 3, 12, 3))
sketch7.addConstraint(Sketcher.Constraint("Horizontal", 13, 3, 18, 3))
sketch7.addConstraint(Sketcher.Constraint("Horizontal", 18, 3, 23, 3))
sketch7.addConstraint(Sketcher.Constraint("Horizontal", 15, 2, 19, 2))
sketch7.addConstraint(Sketcher.Constraint("Horizontal", 17, 2, 21, 2))
sketch7.addConstraint(Sketcher.Constraint("Equal", 17, 20))
sketch7.addConstraint(Sketcher.Constraint("Equal", 22, 14))
sketch7.addConstraint(Sketcher.Constraint("Diameter", 1, 1.0))
sketch7.addConstraint(Sketcher.Constraint("Diameter", 0, 1.5))
sketch7.addConstraint(Sketcher.Constraint("DistanceX", 15, 1, 15, 2, 1.5))
sketch7.addConstraint(Sketcher.Constraint("DistanceX", -1, 1, 18, 3, 10.0))
sketch7.addConstraint(Sketcher.Constraint("DistanceY", 0, 3, -1, 1, 57.5))
sketch7.addConstraint(Sketcher.Constraint("DistanceX", -1, 1, 4, 3, 22.7))
sketch7.addConstraint(Sketcher.Constraint("DistanceX", 0, 3, 6, 3, 12.7))
sketch7.addConstraint(Sketcher.Constraint("DistanceX", 2, 3, 8, 3, 12.7))
sketch7.addConstraint(Sketcher.Constraint("DistanceX", -1, 1, 0, 3, 12.54))
sketch7.addConstraint(Sketcher.Constraint("DistanceX", -1, 1, 2, 3, 15.08))
sketch7.addConstraint(Sketcher.Constraint("DistanceX", -1, 1, 10, 3, 30.32))
sketch7.addConstraint(Sketcher.Constraint("DistanceX", -1, 1, 12, 3, 32.86))
sketch7.addConstraint(Sketcher.Constraint("DistanceX", -1, 1, 23, 3, 20.16))
sketch7.addConstraint(Sketcher.Constraint("DistanceX", -1, 1, 14, 2, 9.25))
sketch7.addConstraint(Sketcher.Constraint("DistanceY", 14, 2, -1, 1, 56.75))
sketch7.addConstraint(Sketcher.Constraint("DistanceX", -1, 1, 19, 2, 19.41))
pad4 = body.newObject("PartDesign::Pad", "Pad003")
pad4.Profile = sketch7
pad4.Length = 1.7

sketch8 = body.newObject("Sketcher::SketchObject", "Sketch007")
sketch8.AttachmentSupport = (doc.getObject("XZ_Plane"), [""])
sketch8.MapMode = "FlatFace"
sketch8.addGeometry(Part.LineSegment(Vector(5.2, -9, 0), Vector(5.2, -12, 0)), False)
sketch8.addGeometry(Part.LineSegment(Vector(5.2, -12, 0), Vector(5.8, -12, 0)), False)
sketch8.addGeometry(Part.LineSegment(Vector(5.8, -12, 0), Vector(5.8, -9.5, 0)), False)
sketch8.addGeometry(Part.LineSegment(Vector(5.8, -9.5, 0), Vector(8.2, -9.5, 0)), False)
sketch8.addGeometry(Part.LineSegment(Vector(8.2, -9.5, 0), Vector(8.2, -9, 0)), False)
sketch8.addGeometry(Part.LineSegment(Vector(8.2, -9, 0), Vector(5.2, -9, 0)), False)
sketch8.addGeometry(Part.LineSegment(Vector(92.2, -12, 0), Vector(92.8, -12, 0)), False)
sketch8.addGeometry(Part.LineSegment(Vector(92.8, -12, 0), Vector(92.8, -9, 0)), False)
sketch8.addGeometry(Part.LineSegment(Vector(92.8, -9, 0), Vector(89.8, -9, 0)), False)
sketch8.addGeometry(Part.LineSegment(Vector(89.8, -9, 0), Vector(89.8, -9.5, 0)), False)
sketch8.addGeometry(Part.LineSegment(Vector(89.8, -9.5, 0), Vector(92.2, -9.5, 0)), False)
sketch8.addGeometry(Part.LineSegment(Vector(92.2, -9.5, 0), Vector(92.2, -12, 0)), False)
sketch8.addGeometry(Part.LineSegment(Vector(92.8, -51, 0), Vector(92.8, -48, 0)), False)
sketch8.addGeometry(Part.LineSegment(Vector(92.8, -48, 0), Vector(92.2, -48, 0)), False)
sketch8.addGeometry(Part.LineSegment(Vector(92.2, -48, 0), Vector(92.2, -50.5, 0)), False)
sketch8.addGeometry(Part.LineSegment(Vector(92.2, -50.5, 0), Vector(89.8, -50.5, 0)), False)
sketch8.addGeometry(Part.LineSegment(Vector(89.8, -50.5, 0), Vector(89.8, -51, 0)), False)
sketch8.addGeometry(Part.LineSegment(Vector(89.8, -51, 0), Vector(92.8, -51, 0)), False)
sketch8.addGeometry(Part.LineSegment(Vector(5.8, -48, 0), Vector(5.2, -48, 0)), False)
sketch8.addGeometry(Part.LineSegment(Vector(5.2, -48, 0), Vector(5.2, -51, 0)), False)
sketch8.addGeometry(Part.LineSegment(Vector(5.2, -51, 0), Vector(8.2, -51, 0)), False)
sketch8.addGeometry(Part.LineSegment(Vector(8.2, -51, 0), Vector(8.2, -50.5, 0)), False)
sketch8.addGeometry(Part.LineSegment(Vector(8.2, -50.5, 0), Vector(5.8, -50.5, 0)), False)
sketch8.addGeometry(Part.LineSegment(Vector(5.8, -50.5, 0), Vector(5.8, -48, 0)), False)
sketch8.addConstraint(Sketcher.Constraint("Coincident", 0, 2, 1, 1))
sketch8.addConstraint(Sketcher.Constraint("Coincident", 1, 2, 2, 1))
sketch8.addConstraint(Sketcher.Constraint("Coincident", 2, 2, 3, 1))
sketch8.addConstraint(Sketcher.Constraint("Coincident", 3, 2, 4, 1))
sketch8.addConstraint(Sketcher.Constraint("Coincident", 4, 2, 5, 1))
sketch8.addConstraint(Sketcher.Constraint("Coincident", 5, 2, 0, 1))
sketch8.addConstraint(Sketcher.Constraint("Coincident", 6, 2, 7, 1))
sketch8.addConstraint(Sketcher.Constraint("Coincident", 7, 2, 8, 1))
sketch8.addConstraint(Sketcher.Constraint("Coincident", 8, 2, 9, 1))
sketch8.addConstraint(Sketcher.Constraint("Coincident", 9, 2, 10, 1))
sketch8.addConstraint(Sketcher.Constraint("Coincident", 10, 2, 11, 1))
sketch8.addConstraint(Sketcher.Constraint("Coincident", 11, 2, 6, 1))
sketch8.addConstraint(Sketcher.Constraint("Coincident", 12, 2, 13, 1))
sketch8.addConstraint(Sketcher.Constraint("Coincident", 13, 2, 14, 1))
sketch8.addConstraint(Sketcher.Constraint("Coincident", 14, 2, 15, 1))
sketch8.addConstraint(Sketcher.Constraint("Coincident", 15, 2, 16, 1))
sketch8.addConstraint(Sketcher.Constraint("Coincident", 16, 2, 17, 1))
sketch8.addConstraint(Sketcher.Constraint("Coincident", 17, 2, 12, 1))
sketch8.addConstraint(Sketcher.Constraint("Coincident", 18, 2, 19, 1))
sketch8.addConstraint(Sketcher.Constraint("Coincident", 19, 2, 20, 1))
sketch8.addConstraint(Sketcher.Constraint("Coincident", 20, 2, 21, 1))
sketch8.addConstraint(Sketcher.Constraint("Coincident", 21, 2, 22, 1))
sketch8.addConstraint(Sketcher.Constraint("Coincident", 22, 2, 23, 1))
sketch8.addConstraint(Sketcher.Constraint("Coincident", 23, 2, 18, 1))
sketch8.addConstraint(Sketcher.Constraint("Vertical", 0))
sketch8.addConstraint(Sketcher.Constraint("Horizontal", 1))
sketch8.addConstraint(Sketcher.Constraint("Vertical", 2))
sketch8.addConstraint(Sketcher.Constraint("Horizontal", 3))
sketch8.addConstraint(Sketcher.Constraint("Vertical", 4))
sketch8.addConstraint(Sketcher.Constraint("Horizontal", 5))
sketch8.addConstraint(Sketcher.Constraint("Horizontal", 6))
sketch8.addConstraint(Sketcher.Constraint("Vertical", 7))
sketch8.addConstraint(Sketcher.Constraint("Horizontal", 8))
sketch8.addConstraint(Sketcher.Constraint("Vertical", 9))
sketch8.addConstraint(Sketcher.Constraint("Horizontal", 10))
sketch8.addConstraint(Sketcher.Constraint("Vertical", 11))
sketch8.addConstraint(Sketcher.Constraint("Vertical", 12))
sketch8.addConstraint(Sketcher.Constraint("Horizontal", 13))
sketch8.addConstraint(Sketcher.Constraint("Vertical", 14))
sketch8.addConstraint(Sketcher.Constraint("Horizontal", 15))
sketch8.addConstraint(Sketcher.Constraint("Vertical", 16))
sketch8.addConstraint(Sketcher.Constraint("Horizontal", 17))
sketch8.addConstraint(Sketcher.Constraint("Horizontal", 18))
sketch8.addConstraint(Sketcher.Constraint("Vertical", 19))
sketch8.addConstraint(Sketcher.Constraint("Horizontal", 20))
sketch8.addConstraint(Sketcher.Constraint("Vertical", 21))
sketch8.addConstraint(Sketcher.Constraint("Horizontal", 22))
sketch8.addConstraint(Sketcher.Constraint("Vertical", 23))
sketch8.addConstraint(Sketcher.Constraint("Horizontal", 1, 2, 6, 2))
sketch8.addConstraint(Sketcher.Constraint("Horizontal", 5, 2, 7, 2))
sketch8.addConstraint(Sketcher.Constraint("Horizontal", 3, 2, 9, 2))
sketch8.addConstraint(Sketcher.Constraint("Horizontal", 13, 2, 18, 2))
sketch8.addConstraint(Sketcher.Constraint("Horizontal", 17, 2, 19, 2))
sketch8.addConstraint(Sketcher.Constraint("Horizontal", 15, 2, 21, 2))
sketch8.addConstraint(Sketcher.Constraint("Vertical", 7, 2, 12, 2))
sketch8.addConstraint(Sketcher.Constraint("Vertical", 11, 2, 13, 2))
sketch8.addConstraint(Sketcher.Constraint("Vertical", 9, 2, 15, 2))
sketch8.addConstraint(Sketcher.Constraint("Vertical", 5, 2, 18, 2))
sketch8.addConstraint(Sketcher.Constraint("Vertical", 4, 2, 20, 2))
sketch8.addConstraint(Sketcher.Constraint("Vertical", 2, 2, 22, 2))
sketch8.addConstraint(Sketcher.Constraint("Equal", 1, 6))
sketch8.addConstraint(Sketcher.Constraint("Equal", 5, 8))
sketch8.addConstraint(Sketcher.Constraint("Equal", 20, 0))
sketch8.addConstraint(Sketcher.Constraint("Equal", 22, 2))
sketch8.addConstraint(Sketcher.Constraint("Equal", 7, 12))
sketch8.addConstraint(Sketcher.Constraint("Equal", 11, 14))
sketch8.addConstraint(Sketcher.Constraint("DistanceX", 5, 2, 5, 1, 3.0))
sketch8.addConstraint(Sketcher.Constraint("DistanceX", 1, 1, 1, 2, 0.5))
sketch8.addConstraint(Sketcher.Constraint("DistanceY", 0, 2, -1, 1, 12.0))
sketch8.addConstraint(Sketcher.Constraint("DistanceY", 12, 2, -1, 1, 48.0))
sketch8.addConstraint(Sketcher.Constraint("DistanceX", 1, 2, 6, 2, 87.0))
sketch8.addConstraint(Sketcher.Constraint("DistanceX", -1, 1, 0, 2, 5.25))
pad5 = body.newObject("PartDesign::Pad", "Pad004")
pad5.Profile = sketch8
pad5.Length = 2.59

doc.recompute()
